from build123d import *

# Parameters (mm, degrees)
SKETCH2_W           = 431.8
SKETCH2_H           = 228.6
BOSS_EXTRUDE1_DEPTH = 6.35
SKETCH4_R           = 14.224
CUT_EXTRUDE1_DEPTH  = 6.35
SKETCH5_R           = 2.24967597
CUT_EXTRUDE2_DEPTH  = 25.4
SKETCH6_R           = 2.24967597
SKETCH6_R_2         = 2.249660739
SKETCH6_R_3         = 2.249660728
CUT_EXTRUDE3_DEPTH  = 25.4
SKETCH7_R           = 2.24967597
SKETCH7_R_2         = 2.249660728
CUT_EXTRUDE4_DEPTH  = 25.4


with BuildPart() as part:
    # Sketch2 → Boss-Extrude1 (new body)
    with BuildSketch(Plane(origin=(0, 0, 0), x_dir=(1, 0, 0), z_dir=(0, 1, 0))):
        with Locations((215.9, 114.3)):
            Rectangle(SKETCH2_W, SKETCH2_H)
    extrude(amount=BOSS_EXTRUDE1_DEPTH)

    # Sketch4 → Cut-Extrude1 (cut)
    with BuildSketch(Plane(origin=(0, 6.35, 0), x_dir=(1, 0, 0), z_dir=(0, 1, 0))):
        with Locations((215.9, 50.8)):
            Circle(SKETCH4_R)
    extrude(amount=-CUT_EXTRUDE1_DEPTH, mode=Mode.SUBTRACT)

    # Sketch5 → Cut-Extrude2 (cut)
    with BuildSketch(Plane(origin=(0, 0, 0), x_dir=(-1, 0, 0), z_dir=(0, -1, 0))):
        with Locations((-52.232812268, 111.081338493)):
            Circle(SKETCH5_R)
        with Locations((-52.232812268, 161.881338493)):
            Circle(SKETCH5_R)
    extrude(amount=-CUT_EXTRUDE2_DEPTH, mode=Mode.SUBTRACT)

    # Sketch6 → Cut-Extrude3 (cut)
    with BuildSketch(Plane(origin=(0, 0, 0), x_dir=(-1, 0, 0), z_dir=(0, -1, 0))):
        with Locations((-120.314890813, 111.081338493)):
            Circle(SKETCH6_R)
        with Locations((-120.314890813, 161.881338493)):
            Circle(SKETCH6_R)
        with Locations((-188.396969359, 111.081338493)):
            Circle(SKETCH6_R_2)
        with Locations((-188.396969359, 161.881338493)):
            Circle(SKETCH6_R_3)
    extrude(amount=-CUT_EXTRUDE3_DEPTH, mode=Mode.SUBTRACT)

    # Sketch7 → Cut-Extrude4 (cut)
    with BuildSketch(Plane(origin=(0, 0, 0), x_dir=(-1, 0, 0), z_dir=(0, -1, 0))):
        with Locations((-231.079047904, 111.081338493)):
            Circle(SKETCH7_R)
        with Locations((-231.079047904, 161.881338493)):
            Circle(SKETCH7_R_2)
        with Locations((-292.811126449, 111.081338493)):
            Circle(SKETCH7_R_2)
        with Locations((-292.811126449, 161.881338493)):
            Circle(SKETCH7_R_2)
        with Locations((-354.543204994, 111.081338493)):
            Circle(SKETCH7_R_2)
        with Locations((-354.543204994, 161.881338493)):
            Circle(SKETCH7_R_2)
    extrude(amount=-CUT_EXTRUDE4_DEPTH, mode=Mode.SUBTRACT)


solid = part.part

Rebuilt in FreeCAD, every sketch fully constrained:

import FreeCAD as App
import Part
import Sketcher
Q = App.Units.Quantity

doc = App.newDocument("Part")
params = doc.addObject("Spreadsheet::Sheet", "Params")
for row, (alias, value) in enumerate([
    ("sketch1_width", "17 in"),
    ("sketch1_height", "9 in"),
    ("pad1_length", "0.25 in"),
    ("sketch2_diameter", "1.12 in"),
    ("pocket1_length", "0.25 in"),
    ("pocket2_length", "1 in"),
    ("pocket3_length", "1 in"),
    ("pocket4_length", "1 in"),
], start=1):
    params.set(f"A{row}", alias)
    params.set(f"B{row}", "=" + value)
    params.setAlias(f"B{row}", alias)

body = doc.addObject("PartDesign::Body", "Body")

# Sketch on XZ plane
sketch1 = body.newObject("Sketcher::SketchObject", "Sketch")
sketch1.AttachmentSupport = (doc.getObject("XZ_Plane"), [""])
sketch1.MapMode = "FlatFace"
sketch1.addGeometry(Part.LineSegment(App.Vector(0, -228.6, 0), App.Vector(0, 0, 0)), False)
sketch1.addGeometry(Part.LineSegment(App.Vector(0, 0, 0), App.Vector(431.8, 0, 0)), False)
sketch1.addGeometry(Part.LineSegment(App.Vector(431.8, 0, 0), App.Vector(431.8, -228.6, 0)), False)
sketch1.addGeometry(Part.LineSegment(App.Vector(431.8, -228.6, 0), App.Vector(0, -228.6, 0)), False)
sketch1.addConstraint(Sketcher.Constraint("Coincident", 0, 2, 1, 1))
sketch1.addConstraint(Sketcher.Constraint("Coincident", 1, 2, 2, 1))
sketch1.addConstraint(Sketcher.Constraint("Coincident", 2, 2, 3, 1))
sketch1.addConstraint(Sketcher.Constraint("Coincident", 3, 2, 0, 1))
sketch1.addConstraint(Sketcher.Constraint("Vertical", 0))
sketch1.addConstraint(Sketcher.Constraint("Horizontal", 1))
sketch1.addConstraint(Sketcher.Constraint("Vertical", 2))
sketch1.addConstraint(Sketcher.Constraint("Horizontal", 3))
sketch1.addConstraint(Sketcher.Constraint("Coincident", 0, 2, -1, 1))
sketch1.addConstraint(Sketcher.Constraint("DistanceX", 1, 1, 1, 2, Q("17 in")))
sketch1.addConstraint(Sketcher.Constraint("DistanceY", 0, 1, 0, 2, Q("9 in")))
sketch1.setExpression("Constraints[9]", "Params.sketch1_width")
sketch1.setExpression("Constraints[10]", "Params.sketch1_height")
pad1 = body.newObject("PartDesign::Pad", "Pad")
pad1.Profile = sketch1
pad1.setExpression("Length", "Params.pad1_length")
pad1.Reversed = True

# Sketch on XZ plane
sketch2 = body.newObject("Sketcher::SketchObject", "Sketch001")
sketch2.AttachmentSupport = (doc.getObject("XZ_Plane"), [""])
sketch2.MapMode = "FlatFace"
sketch2.AttachmentOffset = App.Placement(App.Vector(0, 0, -0.25 * 25.4), App.Rotation())
sketch2.addGeometry(Part.Circle(App.Vector(215.9, -50.8, 0), App.Vector(0, 0, 1), 14.224), False)
sketch2.addConstraint(Sketcher.Constraint("Diameter", 0, Q("1.12 in")))
sketch2.addConstraint(Sketcher.Constraint("DistanceY", 0, 3, -1, 1, Q("2 in")))
sketch2.addConstraint(Sketcher.Constraint("DistanceX", -1, 1, 0, 3, Q("8.5 in")))
sketch2.setExpression("Constraints[0]", "Params.sketch2_diameter")
pocket1 = body.newObject("PartDesign::Pocket", "Pocket")
pocket1.Profile = sketch2
pocket1.setExpression("Length", "Params.pocket1_length")
pocket1.Reversed = True

# Sketch on XZ plane
sketch3 = body.newObject("Sketcher::SketchObject", "Sketch002")
sketch3.AttachmentSupport = (doc.getObject("XZ_Plane"), [""])
sketch3.MapMode = "FlatFace"
sketch3.addGeometry(Part.Circle(App.Vector(52.232812, -111.081338, 0), App.Vector(0, 0, 1), 2.249676), False)
sketch3.addGeometry(Part.Circle(App.Vector(52.232812, -161.881338, 0), App.Vector(0, 0, 1), 2.249676), False)
sketch3.addConstraint(Sketcher.Constraint("Equal", 0, 1))
sketch3.addConstraint(Sketcher.Constraint("Vertical", 0, 3, 1, 3))
sketch3.addConstraint(Sketcher.Constraint("DistanceY", 1, 3, 0, 3, Q("2 in")))
sketch3.addConstraint(Sketcher.Constraint("Diameter", 0, 4.499352))
sketch3.addConstraint(Sketcher.Constraint("DistanceY", 0, 3, -1, 1, 111.081338))
sketch3.addConstraint(Sketcher.Constraint("DistanceX", -1, 1, 0, 3, 52.232812))
pocket2 = body.newObject("PartDesign::Pocket", "Pocket001")
pocket2.Profile = sketch3
pocket2.setExpression("Length", "Params.pocket2_length")

# Sketch on XZ plane
sketch4 = body.newObject("Sketcher::SketchObject", "Sketch003")
sketch4.AttachmentSupport = (doc.getObject("XZ_Plane"), [""])
sketch4.MapMode = "FlatFace"
sketch4.addGeometry(Part.Circle(App.Vector(120.314891, -111.081338, 0), App.Vector(0, 0, 1), 2.249676), False)
sketch4.addGeometry(Part.Circle(App.Vector(120.314891, -161.881338, 0), App.Vector(0, 0, 1), 2.249676), False)
sketch4.addGeometry(Part.Circle(App.Vector(188.396969, -111.081338, 0), App.Vector(0, 0, 1), 2.249661), False)
sketch4.addGeometry(Part.Circle(App.Vector(188.396969, -161.881338, 0), App.Vector(0, 0, 1), 2.249661), False)
sketch4.addConstraint(Sketcher.Constraint("Equal", 0, 1))
sketch4.addConstraint(Sketcher.Constraint("Equal", 2, 3))
sketch4.addConstraint(Sketcher.Constraint("Horizontal", 0, 3, 2, 3))
sketch4.addConstraint(Sketcher.Constraint("Horizontal", 1, 3, 3, 3))
sketch4.addConstraint(Sketcher.Constraint("Vertical", 0, 3, 1, 3))
sketch4.addConstraint(Sketcher.Constraint("Vertical", 2, 3, 3, 3))
sketch4.addConstraint(Sketcher.Constraint("DistanceY", 1, 3, 0, 3, Q("2 in")))
sketch4.addConstraint(Sketcher.Constraint("Diameter", 0, 4.499352))
sketch4.addConstraint(Sketcher.Constraint("Diameter", 2, 4.499321))
sketch4.addConstraint(Sketcher.Constraint("DistanceX", -1, 1, 0, 3, 120.314891))
sketch4.addConstraint(Sketcher.Constraint("DistanceY", 0, 3, -1, 1, 111.081338))
sketch4.addConstraint(Sketcher.Constraint("DistanceX", -1, 1, 2, 3, 188.396969))
pocket3 = body.newObject("PartDesign::Pocket", "Pocket002")
pocket3.Profile = sketch4
pocket3.setExpression("Length", "Params.pocket3_length")

# Sketch on XZ plane
sketch5 = body.newObject("Sketcher::SketchObject", "Sketch004")
sketch5.AttachmentSupport = (doc.getObject("XZ_Plane"), [""])
sketch5.MapMode = "FlatFace"
sketch5.addGeometry(Part.Circle(App.Vector(231.079048, -111.081338, 0), App.Vector(0, 0, 1), 2.249676), False)
sketch5.addGeometry(Part.Circle(App.Vector(231.079048, -161.881338, 0), App.Vector(0, 0, 1), 2.249661), False)
sketch5.addGeometry(Part.Circle(App.Vector(292.811126, -111.081338, 0), App.Vector(0, 0, 1), 2.249661), False)
sketch5.addGeometry(Part.Circle(App.Vector(292.811126, -161.881338, 0), App.Vector(0, 0, 1), 2.249661), False)
sketch5.addGeometry(Part.Circle(App.Vector(354.543205, -111.081338, 0), App.Vector(0, 0, 1), 2.249661), False)
sketch5.addGeometry(Part.Circle(App.Vector(354.543205, -161.881338, 0), App.Vector(0, 0, 1), 2.249661), False)
sketch5.addConstraint(Sketcher.Constraint("Equal", 1, 2))
sketch5.addConstraint(Sketcher.Constraint("Equal", 2, 3))
sketch5.addConstraint(Sketcher.Constraint("Equal", 3, 4))
sketch5.addConstraint(Sketcher.Constraint("Equal", 4, 5))
sketch5.addConstraint(Sketcher.Constraint("Horizontal", 0, 3, 2, 3))
sketch5.addConstraint(Sketcher.Constraint("Horizontal", 1, 3, 3, 3))
sketch5.addConstraint(Sketcher.Constraint("Horizontal", 2, 3, 4, 3))
sketch5.addConstraint(Sketcher.Constraint("Horizontal", 3, 3, 5, 3))
sketch5.addConstraint(Sketcher.Constraint("Vertical", 0, 3, 1, 3))
sketch5.addConstraint(Sketcher.Constraint("Vertical", 2, 3, 3, 3))
sketch5.addConstraint(Sketcher.Constraint("Vertical", 4, 3, 5, 3))
sketch5.addConstraint(Sketcher.Constraint("DistanceY", 1, 3, 0, 3, Q("2 in")))
sketch5.addConstraint(Sketcher.Constraint("Diameter", 0, 4.499352))
sketch5.addConstraint(Sketcher.Constraint("Diameter", 1, 4.499321))
sketch5.addConstraint(Sketcher.Constraint("DistanceY", 0, 3, -1, 1, 111.081338))
sketch5.addConstraint(Sketcher.Constraint("DistanceX", 0, 3, 2, 3, 61.732079))
sketch5.addConstraint(Sketcher.Constraint("DistanceX", 2, 3, 4, 3, 61.732079))
sketch5.addConstraint(Sketcher.Constraint("DistanceX", -1, 1, 0, 3, 231.079048))
pocket4 = body.newObject("PartDesign::Pocket", "Pocket003")
pocket4.Profile = sketch5
pocket4.setExpression("Length", "Params.pocket4_length")

doc.recompute()
